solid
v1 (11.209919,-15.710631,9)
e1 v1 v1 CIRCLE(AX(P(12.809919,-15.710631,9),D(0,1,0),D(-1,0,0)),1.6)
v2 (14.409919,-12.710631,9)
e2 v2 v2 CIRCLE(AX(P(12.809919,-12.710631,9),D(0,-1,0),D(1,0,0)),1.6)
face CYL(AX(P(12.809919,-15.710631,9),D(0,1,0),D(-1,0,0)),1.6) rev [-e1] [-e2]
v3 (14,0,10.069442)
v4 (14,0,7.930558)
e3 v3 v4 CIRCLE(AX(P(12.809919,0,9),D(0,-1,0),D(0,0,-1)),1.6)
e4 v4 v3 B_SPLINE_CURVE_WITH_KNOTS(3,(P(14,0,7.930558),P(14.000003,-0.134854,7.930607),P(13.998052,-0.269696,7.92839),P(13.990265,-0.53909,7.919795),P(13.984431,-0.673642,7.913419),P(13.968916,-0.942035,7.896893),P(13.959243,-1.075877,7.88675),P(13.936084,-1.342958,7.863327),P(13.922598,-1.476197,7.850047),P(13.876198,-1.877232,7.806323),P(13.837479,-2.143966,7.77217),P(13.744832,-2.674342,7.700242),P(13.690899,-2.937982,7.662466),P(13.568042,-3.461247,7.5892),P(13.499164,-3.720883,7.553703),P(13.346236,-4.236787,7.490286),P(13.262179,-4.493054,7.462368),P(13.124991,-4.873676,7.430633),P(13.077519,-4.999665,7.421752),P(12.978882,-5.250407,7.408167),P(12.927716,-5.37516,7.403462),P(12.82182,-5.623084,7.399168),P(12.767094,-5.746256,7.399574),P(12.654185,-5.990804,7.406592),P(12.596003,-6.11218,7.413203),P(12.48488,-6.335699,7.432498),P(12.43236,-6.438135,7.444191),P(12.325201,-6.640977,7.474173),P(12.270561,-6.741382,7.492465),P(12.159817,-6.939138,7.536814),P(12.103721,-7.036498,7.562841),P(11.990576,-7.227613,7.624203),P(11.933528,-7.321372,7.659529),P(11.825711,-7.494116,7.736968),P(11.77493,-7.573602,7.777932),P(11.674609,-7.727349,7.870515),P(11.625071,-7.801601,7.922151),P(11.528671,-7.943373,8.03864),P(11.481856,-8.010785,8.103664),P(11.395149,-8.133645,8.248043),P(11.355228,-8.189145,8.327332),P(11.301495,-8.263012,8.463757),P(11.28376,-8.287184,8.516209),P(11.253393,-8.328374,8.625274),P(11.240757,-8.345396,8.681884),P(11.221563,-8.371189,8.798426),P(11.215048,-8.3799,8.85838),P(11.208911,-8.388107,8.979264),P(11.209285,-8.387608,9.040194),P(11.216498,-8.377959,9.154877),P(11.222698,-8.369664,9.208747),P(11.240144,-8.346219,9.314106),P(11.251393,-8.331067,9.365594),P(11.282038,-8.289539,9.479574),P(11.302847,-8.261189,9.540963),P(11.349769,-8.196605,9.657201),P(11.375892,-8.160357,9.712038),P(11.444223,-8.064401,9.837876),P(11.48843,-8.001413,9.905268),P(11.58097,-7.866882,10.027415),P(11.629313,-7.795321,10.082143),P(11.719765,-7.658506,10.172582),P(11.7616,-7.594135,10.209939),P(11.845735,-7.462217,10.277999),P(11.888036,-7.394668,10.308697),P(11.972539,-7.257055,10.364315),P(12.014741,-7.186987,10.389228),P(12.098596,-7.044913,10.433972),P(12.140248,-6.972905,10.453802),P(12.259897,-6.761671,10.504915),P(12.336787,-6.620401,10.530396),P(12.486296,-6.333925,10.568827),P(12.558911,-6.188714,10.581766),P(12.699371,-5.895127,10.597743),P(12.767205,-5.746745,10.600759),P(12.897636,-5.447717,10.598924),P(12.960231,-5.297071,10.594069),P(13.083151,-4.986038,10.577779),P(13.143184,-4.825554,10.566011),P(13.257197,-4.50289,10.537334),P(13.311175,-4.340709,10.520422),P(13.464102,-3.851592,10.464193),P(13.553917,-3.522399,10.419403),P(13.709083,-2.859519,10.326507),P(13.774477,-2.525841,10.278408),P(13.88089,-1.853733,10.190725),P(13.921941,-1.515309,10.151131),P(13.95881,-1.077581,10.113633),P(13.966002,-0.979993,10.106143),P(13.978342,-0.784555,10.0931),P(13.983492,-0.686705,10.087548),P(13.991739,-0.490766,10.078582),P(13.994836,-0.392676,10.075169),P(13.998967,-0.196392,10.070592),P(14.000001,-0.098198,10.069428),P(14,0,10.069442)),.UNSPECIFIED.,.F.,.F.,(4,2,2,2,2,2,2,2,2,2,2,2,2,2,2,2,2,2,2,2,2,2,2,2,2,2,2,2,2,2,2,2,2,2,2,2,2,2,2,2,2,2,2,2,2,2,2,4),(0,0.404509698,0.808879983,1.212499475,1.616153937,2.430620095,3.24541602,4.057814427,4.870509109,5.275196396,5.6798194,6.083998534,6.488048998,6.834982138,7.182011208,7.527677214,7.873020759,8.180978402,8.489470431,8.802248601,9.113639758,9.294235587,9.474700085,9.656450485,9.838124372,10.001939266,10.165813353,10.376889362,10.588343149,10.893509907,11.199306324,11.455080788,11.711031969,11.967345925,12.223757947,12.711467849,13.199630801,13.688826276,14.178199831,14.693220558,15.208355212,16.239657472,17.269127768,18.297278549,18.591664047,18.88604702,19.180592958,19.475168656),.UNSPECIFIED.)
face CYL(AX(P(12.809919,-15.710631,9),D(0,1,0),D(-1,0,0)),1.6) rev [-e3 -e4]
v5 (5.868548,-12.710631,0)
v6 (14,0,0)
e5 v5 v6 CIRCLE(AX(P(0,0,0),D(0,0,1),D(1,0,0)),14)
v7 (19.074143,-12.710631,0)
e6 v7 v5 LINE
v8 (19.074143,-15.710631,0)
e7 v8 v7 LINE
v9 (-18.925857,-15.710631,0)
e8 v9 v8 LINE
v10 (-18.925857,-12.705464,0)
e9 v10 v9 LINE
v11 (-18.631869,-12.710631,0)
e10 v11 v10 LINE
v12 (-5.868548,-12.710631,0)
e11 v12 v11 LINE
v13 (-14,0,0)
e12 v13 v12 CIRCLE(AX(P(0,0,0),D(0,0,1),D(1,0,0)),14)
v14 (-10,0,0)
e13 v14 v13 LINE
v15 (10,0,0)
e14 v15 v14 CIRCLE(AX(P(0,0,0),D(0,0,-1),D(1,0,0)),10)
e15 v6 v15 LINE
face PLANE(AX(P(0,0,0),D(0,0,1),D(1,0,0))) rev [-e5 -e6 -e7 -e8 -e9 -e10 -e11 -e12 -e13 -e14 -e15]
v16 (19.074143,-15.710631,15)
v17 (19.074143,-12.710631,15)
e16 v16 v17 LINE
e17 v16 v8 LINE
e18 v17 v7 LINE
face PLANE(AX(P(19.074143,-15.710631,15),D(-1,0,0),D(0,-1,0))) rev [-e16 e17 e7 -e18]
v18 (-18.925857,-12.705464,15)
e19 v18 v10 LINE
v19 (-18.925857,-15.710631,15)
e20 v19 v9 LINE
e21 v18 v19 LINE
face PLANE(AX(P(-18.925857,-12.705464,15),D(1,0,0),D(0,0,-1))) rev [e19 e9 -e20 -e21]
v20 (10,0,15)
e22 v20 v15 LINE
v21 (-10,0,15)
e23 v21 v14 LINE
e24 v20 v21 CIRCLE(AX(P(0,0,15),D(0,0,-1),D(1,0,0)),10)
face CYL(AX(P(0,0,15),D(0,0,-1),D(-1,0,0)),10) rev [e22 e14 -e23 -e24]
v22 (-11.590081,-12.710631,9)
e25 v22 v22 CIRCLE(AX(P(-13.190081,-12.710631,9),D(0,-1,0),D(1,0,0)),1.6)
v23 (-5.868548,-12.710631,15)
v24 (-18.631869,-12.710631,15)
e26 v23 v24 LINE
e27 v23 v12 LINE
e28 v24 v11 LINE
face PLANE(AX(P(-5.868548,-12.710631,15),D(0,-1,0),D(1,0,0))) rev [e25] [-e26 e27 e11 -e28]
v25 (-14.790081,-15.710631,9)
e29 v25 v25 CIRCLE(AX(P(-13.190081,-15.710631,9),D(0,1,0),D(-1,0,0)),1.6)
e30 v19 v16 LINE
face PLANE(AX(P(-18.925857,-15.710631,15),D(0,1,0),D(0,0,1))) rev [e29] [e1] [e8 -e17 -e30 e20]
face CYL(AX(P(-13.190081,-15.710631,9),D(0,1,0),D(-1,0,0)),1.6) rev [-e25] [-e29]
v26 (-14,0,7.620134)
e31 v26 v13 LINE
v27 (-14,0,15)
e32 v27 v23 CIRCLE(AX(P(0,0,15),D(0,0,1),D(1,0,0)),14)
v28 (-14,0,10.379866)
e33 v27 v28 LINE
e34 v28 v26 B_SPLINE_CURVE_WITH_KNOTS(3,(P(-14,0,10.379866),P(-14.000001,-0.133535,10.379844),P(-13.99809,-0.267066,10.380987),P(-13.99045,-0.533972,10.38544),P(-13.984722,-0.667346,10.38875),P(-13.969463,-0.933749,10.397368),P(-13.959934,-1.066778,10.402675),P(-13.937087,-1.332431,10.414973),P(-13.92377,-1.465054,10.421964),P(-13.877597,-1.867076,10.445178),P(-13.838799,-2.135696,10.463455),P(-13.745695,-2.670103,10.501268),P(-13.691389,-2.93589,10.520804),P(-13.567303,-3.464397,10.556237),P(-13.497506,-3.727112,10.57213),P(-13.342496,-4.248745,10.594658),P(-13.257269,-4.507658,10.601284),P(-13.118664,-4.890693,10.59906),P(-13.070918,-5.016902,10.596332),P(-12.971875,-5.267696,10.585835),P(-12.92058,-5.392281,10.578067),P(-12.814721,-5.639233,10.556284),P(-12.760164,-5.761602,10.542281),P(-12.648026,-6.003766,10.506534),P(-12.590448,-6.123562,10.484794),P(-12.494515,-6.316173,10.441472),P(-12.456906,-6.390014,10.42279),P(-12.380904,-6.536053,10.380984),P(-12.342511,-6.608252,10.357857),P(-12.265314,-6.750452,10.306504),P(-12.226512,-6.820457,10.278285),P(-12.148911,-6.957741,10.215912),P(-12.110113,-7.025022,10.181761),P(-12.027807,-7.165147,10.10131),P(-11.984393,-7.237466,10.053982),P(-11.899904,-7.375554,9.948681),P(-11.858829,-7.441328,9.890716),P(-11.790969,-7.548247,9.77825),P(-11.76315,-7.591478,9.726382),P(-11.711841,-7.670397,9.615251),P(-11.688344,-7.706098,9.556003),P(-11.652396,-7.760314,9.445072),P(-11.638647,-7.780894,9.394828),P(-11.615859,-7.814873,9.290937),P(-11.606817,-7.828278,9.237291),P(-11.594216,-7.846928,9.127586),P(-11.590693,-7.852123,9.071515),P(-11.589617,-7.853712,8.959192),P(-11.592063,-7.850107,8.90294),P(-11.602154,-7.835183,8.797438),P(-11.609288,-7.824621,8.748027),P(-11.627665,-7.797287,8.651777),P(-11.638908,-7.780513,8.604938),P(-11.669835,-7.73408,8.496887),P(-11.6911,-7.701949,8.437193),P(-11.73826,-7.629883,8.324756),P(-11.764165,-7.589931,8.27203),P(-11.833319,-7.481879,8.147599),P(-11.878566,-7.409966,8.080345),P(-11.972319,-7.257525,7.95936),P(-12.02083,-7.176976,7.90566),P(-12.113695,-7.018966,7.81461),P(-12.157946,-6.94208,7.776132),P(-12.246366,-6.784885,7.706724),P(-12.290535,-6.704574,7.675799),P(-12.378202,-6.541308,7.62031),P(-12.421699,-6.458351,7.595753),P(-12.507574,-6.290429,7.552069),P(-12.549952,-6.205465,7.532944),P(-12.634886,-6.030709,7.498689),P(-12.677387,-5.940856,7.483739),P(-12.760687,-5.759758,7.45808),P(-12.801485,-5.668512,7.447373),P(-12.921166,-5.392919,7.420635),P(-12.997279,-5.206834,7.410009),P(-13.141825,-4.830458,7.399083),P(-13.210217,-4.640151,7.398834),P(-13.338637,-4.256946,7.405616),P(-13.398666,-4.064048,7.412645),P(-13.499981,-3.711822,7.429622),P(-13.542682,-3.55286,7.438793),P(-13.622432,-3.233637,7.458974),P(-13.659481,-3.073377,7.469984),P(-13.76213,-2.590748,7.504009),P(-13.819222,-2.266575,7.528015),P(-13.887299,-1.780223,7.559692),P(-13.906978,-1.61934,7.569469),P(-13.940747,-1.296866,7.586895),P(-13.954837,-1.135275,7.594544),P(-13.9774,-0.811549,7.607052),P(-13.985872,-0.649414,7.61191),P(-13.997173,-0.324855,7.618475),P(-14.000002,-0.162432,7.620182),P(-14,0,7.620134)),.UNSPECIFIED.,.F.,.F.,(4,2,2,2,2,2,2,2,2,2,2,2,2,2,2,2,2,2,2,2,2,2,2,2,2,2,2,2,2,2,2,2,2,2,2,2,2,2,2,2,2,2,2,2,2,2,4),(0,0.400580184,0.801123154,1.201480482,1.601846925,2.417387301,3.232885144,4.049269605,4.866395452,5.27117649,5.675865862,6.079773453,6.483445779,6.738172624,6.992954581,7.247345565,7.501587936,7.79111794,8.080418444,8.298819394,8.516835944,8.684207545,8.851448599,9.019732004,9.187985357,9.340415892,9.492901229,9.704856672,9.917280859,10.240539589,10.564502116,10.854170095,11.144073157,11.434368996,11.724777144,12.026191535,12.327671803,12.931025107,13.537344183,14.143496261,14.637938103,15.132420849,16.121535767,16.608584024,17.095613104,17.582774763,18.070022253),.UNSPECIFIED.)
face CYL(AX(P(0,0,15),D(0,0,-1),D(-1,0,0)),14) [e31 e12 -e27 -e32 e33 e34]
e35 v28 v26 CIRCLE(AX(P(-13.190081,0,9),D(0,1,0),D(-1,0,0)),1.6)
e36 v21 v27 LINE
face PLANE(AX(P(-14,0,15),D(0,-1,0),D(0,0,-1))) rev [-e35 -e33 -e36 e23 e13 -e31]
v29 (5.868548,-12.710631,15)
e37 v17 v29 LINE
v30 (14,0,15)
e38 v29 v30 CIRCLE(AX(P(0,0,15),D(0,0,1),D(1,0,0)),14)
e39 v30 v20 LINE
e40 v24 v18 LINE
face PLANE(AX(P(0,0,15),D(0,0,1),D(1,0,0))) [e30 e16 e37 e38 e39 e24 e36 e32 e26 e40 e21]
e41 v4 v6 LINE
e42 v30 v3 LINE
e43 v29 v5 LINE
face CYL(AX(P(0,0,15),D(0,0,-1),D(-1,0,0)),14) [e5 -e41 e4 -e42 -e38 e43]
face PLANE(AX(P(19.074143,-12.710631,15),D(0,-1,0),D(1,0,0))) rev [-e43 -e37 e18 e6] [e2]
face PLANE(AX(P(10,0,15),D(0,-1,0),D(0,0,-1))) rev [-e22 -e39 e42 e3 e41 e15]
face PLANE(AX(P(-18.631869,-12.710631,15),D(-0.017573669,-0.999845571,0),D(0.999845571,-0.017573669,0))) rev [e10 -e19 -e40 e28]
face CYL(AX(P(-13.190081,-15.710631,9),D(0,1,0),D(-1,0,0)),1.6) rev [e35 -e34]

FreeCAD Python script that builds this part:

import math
import FreeCAD as App
import Part
import Sketcher
from FreeCAD import Vector

doc = App.newDocument("Part")
body = doc.addObject("PartDesign::Body", "Body")

# Sketch on XY plane
sketch1 = body.newObject("Sketcher::SketchObject", "Sketch")
sketch1.AttachmentSupport = (doc.getObject("XY_Plane"), [""])
sketch1.MapMode = "FlatFace"
sketch1.addGeometry(Part.LineSegment(Vector(-18.63, -12.71, 0), Vector(-18.93, -12.71, 0)), False)
sketch1.addGeometry(Part.LineSegment(Vector(-18.93, -12.71, 0), Vector(-18.93, -15.71, 0)), False)
sketch1.addGeometry(Part.LineSegment(Vector(-18.93, -15.71, 0), Vector(19.07, -15.71, 0)), False)
sketch1.addGeometry(Part.LineSegment(Vector(19.07, -15.71, 0), Vector(19.07, -12.71, 0)), False)
sketch1.addGeometry(Part.LineSegment(Vector(19.07, -12.71, 0), Vector(5.87, -12.71, 0)), False)
sketch1.addGeometry(Part.ArcOfCircle(Part.Circle(Vector(0, 0, 0), Vector(0, 0, 1), 14), math.radians(-65), math.radians(0)), False)
sketch1.addGeometry(Part.LineSegment(Vector(14, 0, 0), Vector(10, 0, 0)), False)
sketch1.addGeometry(Part.ArcOfCircle(Part.Circle(Vector(0, 0, 0), Vector(0, 0, 1), 10), math.radians(180), math.radians(360)), False)
sketch1.addGeometry(Part.LineSegment(Vector(-10, 0, 0), Vector(-14, 0, 0)), False)
sketch1.addGeometry(Part.ArcOfCircle(Part.Circle(Vector(0, 0, 0), Vector(0, 0, 1), 14), math.radians(180), math.radians(245)), False)
sketch1.addGeometry(Part.LineSegment(Vector(-5.87, -12.71, 0), Vector(-18.63, -12.71, 0)), False)
sketch1.addConstraint(Sketcher.Constraint("Coincident", 0, 2, 1, 1))
sketch1.addConstraint(Sketcher.Constraint("Coincident", 1, 2, 2, 1))
sketch1.addConstraint(Sketcher.Constraint("Coincident", 2, 2, 3, 1))
sketch1.addConstraint(Sketcher.Constraint("Coincident", 3, 2, 4, 1))
sketch1.addConstraint(Sketcher.Constraint("Coincident", 4, 2, 5, 1))
sketch1.addConstraint(Sketcher.Constraint("Coincident", 5, 2, 6, 1))
sketch1.addConstraint(Sketcher.Constraint("Coincident", 6, 2, 7, 2))
sketch1.addConstraint(Sketcher.Constraint("Coincident", 7, 1, 8, 1))
sketch1.addConstraint(Sketcher.Constraint("Coincident", 8, 2, 9, 1))
sketch1.addConstraint(Sketcher.Constraint("Coincident", 9, 2, 10, 1))
sketch1.addConstraint(Sketcher.Constraint("Coincident", 10, 2, 0, 1))
sketch1.addConstraint(Sketcher.Constraint("Vertical", 1))
sketch1.addConstraint(Sketcher.Constraint("Horizontal", 2))
sketch1.addConstraint(Sketcher.Constraint("Vertical", 3))
sketch1.addConstraint(Sketcher.Constraint("Horizontal", 4))
sketch1.addConstraint(Sketcher.Constraint("Horizontal", 6))
sketch1.addConstraint(Sketcher.Constraint("Horizontal", 8))
sketch1.addConstraint(Sketcher.Constraint("Horizontal", 10))
sketch1.addConstraint(Sketcher.Constraint("Coincident", 5, 3, -1, 1))
sketch1.addConstraint(Sketcher.Constraint("Coincident", 7, 3, -1, 1))
sketch1.addConstraint(Sketcher.Constraint("Coincident", 9, 3, -1, 1))
sketch1.addConstraint(Sketcher.Constraint("Equal", 5, 9))
sketch1.addConstraint(Sketcher.Constraint("PointOnObject", 5, 2, -1))
sketch1.addConstraint(Sketcher.Constraint("PointOnObject", 7, 1, -1))
sketch1.addConstraint(Sketcher.Constraint("Horizontal", 4, 2, 9, 2))
sketch1.addConstraint(Sketcher.Constraint("Radius", 5, 14.0))
sketch1.addConstraint(Sketcher.Constraint("Radius", 7, 10.0))
sketch1.addConstraint(Sketcher.Constraint("DistanceX", 2, 1, 2, 2, 38.0))
sketch1.addConstraint(Sketcher.Constraint("DistanceY", 3, 1, 3, 2, 3.0))
sketch1.addConstraint(Sketcher.Constraint("DistanceX", 10, 2, 10, 1, 12.763321))
sketch1.addConstraint(Sketcher.Constraint("DistanceX", 4, 2, 4, 1, 13.205594))
sketch1.addConstraint(Sketcher.Constraint("DistanceY", 1, 2, 1, 1, 3.005167))
sketch1.addConstraint(Sketcher.Constraint("DistanceY", 1, 2, -1, 1, 15.710631))
pad1 = body.newObject("PartDesign::Pad", "Pad")
pad1.Profile = sketch1
pad1.Length = 15

# Sketch on XZ plane
sketch2 = body.newObject("Sketcher::SketchObject", "Sketch001")
sketch2.AttachmentSupport = (doc.getObject("XZ_Plane"), [""])
sketch2.MapMode = "FlatFace"
sketch2.AttachmentOffset = App.Placement(Vector(0, 0, 12.710631), App.Rotation())
sketch2.addGeometry(Part.Circle(Vector(-13.2, 9, 0), Vector(0, 0, 1), 1.6), False)
sketch2.addGeometry(Part.Circle(Vector(12.8, 9, 0), Vector(0, 0, 1), 1.6), False)
sketch2.addConstraint(Sketcher.Constraint("Equal", 0, 1))
sketch2.addConstraint(Sketcher.Constraint("Horizontal", 0, 3, 1, 3))
sketch2.addConstraint(Sketcher.Constraint("Diameter", 0, 3.2))
sketch2.addConstraint(Sketcher.Constraint("DistanceY", -1, 1, 0, 3, 9.0))
sketch2.addConstraint(Sketcher.Constraint("DistanceX", 0, 3, 1, 3, 26.0))
sketch2.addConstraint(Sketcher.Constraint("DistanceX", 0, 3, -1, 1, 13.190081))
pocket1 = body.newObject("PartDesign::Pocket", "Pocket")
pocket1.Profile = sketch2
pocket1.Type = "ThroughAll"
pocket1.Midplane = True

doc.recompute()
